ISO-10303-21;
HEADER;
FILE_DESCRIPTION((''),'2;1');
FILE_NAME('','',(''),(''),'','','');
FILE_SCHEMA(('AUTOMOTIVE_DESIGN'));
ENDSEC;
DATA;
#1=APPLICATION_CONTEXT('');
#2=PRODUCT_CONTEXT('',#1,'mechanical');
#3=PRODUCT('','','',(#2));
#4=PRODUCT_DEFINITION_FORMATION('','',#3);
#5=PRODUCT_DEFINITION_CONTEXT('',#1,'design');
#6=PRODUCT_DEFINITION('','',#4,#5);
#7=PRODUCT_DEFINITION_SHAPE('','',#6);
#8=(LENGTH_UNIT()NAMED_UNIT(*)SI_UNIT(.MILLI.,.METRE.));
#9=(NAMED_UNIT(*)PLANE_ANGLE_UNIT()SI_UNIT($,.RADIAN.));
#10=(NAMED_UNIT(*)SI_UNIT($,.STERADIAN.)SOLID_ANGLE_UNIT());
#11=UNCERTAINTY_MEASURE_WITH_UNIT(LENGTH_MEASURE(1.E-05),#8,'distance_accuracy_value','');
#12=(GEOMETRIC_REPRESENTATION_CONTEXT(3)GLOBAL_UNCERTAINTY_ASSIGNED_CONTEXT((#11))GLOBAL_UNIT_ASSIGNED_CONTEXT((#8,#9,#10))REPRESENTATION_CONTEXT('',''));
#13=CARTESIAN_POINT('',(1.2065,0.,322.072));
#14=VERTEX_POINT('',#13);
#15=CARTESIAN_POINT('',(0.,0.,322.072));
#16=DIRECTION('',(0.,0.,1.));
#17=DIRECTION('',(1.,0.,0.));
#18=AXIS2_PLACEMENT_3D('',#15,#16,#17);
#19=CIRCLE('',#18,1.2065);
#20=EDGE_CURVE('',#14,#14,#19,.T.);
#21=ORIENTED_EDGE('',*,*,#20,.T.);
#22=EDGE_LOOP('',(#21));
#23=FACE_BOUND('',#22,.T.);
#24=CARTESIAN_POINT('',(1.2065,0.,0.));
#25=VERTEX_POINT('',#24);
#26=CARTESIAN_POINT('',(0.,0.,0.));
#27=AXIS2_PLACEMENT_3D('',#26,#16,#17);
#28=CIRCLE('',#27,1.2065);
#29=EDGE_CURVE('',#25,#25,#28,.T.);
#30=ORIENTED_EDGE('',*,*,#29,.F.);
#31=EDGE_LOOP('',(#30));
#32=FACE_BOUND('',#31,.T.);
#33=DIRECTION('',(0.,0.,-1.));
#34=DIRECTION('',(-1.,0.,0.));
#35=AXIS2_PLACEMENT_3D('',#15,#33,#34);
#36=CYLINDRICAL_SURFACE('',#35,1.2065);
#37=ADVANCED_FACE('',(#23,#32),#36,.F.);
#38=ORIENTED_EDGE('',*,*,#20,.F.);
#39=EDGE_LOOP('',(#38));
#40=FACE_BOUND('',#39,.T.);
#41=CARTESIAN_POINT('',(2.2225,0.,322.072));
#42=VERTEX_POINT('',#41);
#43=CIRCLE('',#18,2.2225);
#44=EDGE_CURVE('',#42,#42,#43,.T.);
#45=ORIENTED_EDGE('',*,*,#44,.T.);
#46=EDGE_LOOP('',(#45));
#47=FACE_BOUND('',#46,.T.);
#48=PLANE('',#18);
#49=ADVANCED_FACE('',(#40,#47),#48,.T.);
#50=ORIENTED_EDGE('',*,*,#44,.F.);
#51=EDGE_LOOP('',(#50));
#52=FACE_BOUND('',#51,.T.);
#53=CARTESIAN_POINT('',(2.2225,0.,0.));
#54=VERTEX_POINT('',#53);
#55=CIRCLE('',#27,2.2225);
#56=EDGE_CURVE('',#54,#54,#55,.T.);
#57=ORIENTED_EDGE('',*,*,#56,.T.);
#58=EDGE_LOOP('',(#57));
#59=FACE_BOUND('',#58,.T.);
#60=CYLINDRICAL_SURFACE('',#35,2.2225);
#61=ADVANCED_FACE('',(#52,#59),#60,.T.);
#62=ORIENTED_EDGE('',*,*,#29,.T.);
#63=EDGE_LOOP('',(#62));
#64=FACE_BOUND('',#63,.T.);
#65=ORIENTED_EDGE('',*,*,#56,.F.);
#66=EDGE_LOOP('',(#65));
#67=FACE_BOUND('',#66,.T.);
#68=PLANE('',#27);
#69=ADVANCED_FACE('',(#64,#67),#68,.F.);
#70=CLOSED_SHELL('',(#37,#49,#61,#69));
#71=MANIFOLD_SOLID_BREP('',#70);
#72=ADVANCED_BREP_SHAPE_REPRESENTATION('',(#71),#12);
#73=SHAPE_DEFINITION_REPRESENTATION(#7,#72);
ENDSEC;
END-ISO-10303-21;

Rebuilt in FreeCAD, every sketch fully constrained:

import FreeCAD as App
import Part
import Sketcher

V = App.Vector
Q = App.Units.Quantity

doc = App.newDocument("Part")
body = doc.addObject("PartDesign::Body", "Body")

sketch1 = body.newObject("Sketcher::SketchObject", "Sketch")
sketch1.AttachmentSupport = (doc.getObject("XY_Plane"), [""])
sketch1.MapMode = "FlatFace"
sketch1.addGeometry([
    Part.Circle(V(0, 0, 0), V(0, 0, 1), 2.2225),
    Part.Circle(V(0, 0, 0), V(0, 0, 1), 1.2065),
], False)
sketch1.addConstraint([
    Sketcher.Constraint("Coincident", 0, 3, -1, 1),
    Sketcher.Constraint("Coincident", 1, 3, -1, 1),
    Sketcher.Constraint("Diameter", 0, Q("0.175 in")),
    Sketcher.Constraint("Diameter", 1, Q("0.095 in")),
])
pad1 = body.newObject("PartDesign::Pad", "Pad")
pad1.Profile = sketch1
pad1.Length = Q("12.68 in")

doc.recompute()
